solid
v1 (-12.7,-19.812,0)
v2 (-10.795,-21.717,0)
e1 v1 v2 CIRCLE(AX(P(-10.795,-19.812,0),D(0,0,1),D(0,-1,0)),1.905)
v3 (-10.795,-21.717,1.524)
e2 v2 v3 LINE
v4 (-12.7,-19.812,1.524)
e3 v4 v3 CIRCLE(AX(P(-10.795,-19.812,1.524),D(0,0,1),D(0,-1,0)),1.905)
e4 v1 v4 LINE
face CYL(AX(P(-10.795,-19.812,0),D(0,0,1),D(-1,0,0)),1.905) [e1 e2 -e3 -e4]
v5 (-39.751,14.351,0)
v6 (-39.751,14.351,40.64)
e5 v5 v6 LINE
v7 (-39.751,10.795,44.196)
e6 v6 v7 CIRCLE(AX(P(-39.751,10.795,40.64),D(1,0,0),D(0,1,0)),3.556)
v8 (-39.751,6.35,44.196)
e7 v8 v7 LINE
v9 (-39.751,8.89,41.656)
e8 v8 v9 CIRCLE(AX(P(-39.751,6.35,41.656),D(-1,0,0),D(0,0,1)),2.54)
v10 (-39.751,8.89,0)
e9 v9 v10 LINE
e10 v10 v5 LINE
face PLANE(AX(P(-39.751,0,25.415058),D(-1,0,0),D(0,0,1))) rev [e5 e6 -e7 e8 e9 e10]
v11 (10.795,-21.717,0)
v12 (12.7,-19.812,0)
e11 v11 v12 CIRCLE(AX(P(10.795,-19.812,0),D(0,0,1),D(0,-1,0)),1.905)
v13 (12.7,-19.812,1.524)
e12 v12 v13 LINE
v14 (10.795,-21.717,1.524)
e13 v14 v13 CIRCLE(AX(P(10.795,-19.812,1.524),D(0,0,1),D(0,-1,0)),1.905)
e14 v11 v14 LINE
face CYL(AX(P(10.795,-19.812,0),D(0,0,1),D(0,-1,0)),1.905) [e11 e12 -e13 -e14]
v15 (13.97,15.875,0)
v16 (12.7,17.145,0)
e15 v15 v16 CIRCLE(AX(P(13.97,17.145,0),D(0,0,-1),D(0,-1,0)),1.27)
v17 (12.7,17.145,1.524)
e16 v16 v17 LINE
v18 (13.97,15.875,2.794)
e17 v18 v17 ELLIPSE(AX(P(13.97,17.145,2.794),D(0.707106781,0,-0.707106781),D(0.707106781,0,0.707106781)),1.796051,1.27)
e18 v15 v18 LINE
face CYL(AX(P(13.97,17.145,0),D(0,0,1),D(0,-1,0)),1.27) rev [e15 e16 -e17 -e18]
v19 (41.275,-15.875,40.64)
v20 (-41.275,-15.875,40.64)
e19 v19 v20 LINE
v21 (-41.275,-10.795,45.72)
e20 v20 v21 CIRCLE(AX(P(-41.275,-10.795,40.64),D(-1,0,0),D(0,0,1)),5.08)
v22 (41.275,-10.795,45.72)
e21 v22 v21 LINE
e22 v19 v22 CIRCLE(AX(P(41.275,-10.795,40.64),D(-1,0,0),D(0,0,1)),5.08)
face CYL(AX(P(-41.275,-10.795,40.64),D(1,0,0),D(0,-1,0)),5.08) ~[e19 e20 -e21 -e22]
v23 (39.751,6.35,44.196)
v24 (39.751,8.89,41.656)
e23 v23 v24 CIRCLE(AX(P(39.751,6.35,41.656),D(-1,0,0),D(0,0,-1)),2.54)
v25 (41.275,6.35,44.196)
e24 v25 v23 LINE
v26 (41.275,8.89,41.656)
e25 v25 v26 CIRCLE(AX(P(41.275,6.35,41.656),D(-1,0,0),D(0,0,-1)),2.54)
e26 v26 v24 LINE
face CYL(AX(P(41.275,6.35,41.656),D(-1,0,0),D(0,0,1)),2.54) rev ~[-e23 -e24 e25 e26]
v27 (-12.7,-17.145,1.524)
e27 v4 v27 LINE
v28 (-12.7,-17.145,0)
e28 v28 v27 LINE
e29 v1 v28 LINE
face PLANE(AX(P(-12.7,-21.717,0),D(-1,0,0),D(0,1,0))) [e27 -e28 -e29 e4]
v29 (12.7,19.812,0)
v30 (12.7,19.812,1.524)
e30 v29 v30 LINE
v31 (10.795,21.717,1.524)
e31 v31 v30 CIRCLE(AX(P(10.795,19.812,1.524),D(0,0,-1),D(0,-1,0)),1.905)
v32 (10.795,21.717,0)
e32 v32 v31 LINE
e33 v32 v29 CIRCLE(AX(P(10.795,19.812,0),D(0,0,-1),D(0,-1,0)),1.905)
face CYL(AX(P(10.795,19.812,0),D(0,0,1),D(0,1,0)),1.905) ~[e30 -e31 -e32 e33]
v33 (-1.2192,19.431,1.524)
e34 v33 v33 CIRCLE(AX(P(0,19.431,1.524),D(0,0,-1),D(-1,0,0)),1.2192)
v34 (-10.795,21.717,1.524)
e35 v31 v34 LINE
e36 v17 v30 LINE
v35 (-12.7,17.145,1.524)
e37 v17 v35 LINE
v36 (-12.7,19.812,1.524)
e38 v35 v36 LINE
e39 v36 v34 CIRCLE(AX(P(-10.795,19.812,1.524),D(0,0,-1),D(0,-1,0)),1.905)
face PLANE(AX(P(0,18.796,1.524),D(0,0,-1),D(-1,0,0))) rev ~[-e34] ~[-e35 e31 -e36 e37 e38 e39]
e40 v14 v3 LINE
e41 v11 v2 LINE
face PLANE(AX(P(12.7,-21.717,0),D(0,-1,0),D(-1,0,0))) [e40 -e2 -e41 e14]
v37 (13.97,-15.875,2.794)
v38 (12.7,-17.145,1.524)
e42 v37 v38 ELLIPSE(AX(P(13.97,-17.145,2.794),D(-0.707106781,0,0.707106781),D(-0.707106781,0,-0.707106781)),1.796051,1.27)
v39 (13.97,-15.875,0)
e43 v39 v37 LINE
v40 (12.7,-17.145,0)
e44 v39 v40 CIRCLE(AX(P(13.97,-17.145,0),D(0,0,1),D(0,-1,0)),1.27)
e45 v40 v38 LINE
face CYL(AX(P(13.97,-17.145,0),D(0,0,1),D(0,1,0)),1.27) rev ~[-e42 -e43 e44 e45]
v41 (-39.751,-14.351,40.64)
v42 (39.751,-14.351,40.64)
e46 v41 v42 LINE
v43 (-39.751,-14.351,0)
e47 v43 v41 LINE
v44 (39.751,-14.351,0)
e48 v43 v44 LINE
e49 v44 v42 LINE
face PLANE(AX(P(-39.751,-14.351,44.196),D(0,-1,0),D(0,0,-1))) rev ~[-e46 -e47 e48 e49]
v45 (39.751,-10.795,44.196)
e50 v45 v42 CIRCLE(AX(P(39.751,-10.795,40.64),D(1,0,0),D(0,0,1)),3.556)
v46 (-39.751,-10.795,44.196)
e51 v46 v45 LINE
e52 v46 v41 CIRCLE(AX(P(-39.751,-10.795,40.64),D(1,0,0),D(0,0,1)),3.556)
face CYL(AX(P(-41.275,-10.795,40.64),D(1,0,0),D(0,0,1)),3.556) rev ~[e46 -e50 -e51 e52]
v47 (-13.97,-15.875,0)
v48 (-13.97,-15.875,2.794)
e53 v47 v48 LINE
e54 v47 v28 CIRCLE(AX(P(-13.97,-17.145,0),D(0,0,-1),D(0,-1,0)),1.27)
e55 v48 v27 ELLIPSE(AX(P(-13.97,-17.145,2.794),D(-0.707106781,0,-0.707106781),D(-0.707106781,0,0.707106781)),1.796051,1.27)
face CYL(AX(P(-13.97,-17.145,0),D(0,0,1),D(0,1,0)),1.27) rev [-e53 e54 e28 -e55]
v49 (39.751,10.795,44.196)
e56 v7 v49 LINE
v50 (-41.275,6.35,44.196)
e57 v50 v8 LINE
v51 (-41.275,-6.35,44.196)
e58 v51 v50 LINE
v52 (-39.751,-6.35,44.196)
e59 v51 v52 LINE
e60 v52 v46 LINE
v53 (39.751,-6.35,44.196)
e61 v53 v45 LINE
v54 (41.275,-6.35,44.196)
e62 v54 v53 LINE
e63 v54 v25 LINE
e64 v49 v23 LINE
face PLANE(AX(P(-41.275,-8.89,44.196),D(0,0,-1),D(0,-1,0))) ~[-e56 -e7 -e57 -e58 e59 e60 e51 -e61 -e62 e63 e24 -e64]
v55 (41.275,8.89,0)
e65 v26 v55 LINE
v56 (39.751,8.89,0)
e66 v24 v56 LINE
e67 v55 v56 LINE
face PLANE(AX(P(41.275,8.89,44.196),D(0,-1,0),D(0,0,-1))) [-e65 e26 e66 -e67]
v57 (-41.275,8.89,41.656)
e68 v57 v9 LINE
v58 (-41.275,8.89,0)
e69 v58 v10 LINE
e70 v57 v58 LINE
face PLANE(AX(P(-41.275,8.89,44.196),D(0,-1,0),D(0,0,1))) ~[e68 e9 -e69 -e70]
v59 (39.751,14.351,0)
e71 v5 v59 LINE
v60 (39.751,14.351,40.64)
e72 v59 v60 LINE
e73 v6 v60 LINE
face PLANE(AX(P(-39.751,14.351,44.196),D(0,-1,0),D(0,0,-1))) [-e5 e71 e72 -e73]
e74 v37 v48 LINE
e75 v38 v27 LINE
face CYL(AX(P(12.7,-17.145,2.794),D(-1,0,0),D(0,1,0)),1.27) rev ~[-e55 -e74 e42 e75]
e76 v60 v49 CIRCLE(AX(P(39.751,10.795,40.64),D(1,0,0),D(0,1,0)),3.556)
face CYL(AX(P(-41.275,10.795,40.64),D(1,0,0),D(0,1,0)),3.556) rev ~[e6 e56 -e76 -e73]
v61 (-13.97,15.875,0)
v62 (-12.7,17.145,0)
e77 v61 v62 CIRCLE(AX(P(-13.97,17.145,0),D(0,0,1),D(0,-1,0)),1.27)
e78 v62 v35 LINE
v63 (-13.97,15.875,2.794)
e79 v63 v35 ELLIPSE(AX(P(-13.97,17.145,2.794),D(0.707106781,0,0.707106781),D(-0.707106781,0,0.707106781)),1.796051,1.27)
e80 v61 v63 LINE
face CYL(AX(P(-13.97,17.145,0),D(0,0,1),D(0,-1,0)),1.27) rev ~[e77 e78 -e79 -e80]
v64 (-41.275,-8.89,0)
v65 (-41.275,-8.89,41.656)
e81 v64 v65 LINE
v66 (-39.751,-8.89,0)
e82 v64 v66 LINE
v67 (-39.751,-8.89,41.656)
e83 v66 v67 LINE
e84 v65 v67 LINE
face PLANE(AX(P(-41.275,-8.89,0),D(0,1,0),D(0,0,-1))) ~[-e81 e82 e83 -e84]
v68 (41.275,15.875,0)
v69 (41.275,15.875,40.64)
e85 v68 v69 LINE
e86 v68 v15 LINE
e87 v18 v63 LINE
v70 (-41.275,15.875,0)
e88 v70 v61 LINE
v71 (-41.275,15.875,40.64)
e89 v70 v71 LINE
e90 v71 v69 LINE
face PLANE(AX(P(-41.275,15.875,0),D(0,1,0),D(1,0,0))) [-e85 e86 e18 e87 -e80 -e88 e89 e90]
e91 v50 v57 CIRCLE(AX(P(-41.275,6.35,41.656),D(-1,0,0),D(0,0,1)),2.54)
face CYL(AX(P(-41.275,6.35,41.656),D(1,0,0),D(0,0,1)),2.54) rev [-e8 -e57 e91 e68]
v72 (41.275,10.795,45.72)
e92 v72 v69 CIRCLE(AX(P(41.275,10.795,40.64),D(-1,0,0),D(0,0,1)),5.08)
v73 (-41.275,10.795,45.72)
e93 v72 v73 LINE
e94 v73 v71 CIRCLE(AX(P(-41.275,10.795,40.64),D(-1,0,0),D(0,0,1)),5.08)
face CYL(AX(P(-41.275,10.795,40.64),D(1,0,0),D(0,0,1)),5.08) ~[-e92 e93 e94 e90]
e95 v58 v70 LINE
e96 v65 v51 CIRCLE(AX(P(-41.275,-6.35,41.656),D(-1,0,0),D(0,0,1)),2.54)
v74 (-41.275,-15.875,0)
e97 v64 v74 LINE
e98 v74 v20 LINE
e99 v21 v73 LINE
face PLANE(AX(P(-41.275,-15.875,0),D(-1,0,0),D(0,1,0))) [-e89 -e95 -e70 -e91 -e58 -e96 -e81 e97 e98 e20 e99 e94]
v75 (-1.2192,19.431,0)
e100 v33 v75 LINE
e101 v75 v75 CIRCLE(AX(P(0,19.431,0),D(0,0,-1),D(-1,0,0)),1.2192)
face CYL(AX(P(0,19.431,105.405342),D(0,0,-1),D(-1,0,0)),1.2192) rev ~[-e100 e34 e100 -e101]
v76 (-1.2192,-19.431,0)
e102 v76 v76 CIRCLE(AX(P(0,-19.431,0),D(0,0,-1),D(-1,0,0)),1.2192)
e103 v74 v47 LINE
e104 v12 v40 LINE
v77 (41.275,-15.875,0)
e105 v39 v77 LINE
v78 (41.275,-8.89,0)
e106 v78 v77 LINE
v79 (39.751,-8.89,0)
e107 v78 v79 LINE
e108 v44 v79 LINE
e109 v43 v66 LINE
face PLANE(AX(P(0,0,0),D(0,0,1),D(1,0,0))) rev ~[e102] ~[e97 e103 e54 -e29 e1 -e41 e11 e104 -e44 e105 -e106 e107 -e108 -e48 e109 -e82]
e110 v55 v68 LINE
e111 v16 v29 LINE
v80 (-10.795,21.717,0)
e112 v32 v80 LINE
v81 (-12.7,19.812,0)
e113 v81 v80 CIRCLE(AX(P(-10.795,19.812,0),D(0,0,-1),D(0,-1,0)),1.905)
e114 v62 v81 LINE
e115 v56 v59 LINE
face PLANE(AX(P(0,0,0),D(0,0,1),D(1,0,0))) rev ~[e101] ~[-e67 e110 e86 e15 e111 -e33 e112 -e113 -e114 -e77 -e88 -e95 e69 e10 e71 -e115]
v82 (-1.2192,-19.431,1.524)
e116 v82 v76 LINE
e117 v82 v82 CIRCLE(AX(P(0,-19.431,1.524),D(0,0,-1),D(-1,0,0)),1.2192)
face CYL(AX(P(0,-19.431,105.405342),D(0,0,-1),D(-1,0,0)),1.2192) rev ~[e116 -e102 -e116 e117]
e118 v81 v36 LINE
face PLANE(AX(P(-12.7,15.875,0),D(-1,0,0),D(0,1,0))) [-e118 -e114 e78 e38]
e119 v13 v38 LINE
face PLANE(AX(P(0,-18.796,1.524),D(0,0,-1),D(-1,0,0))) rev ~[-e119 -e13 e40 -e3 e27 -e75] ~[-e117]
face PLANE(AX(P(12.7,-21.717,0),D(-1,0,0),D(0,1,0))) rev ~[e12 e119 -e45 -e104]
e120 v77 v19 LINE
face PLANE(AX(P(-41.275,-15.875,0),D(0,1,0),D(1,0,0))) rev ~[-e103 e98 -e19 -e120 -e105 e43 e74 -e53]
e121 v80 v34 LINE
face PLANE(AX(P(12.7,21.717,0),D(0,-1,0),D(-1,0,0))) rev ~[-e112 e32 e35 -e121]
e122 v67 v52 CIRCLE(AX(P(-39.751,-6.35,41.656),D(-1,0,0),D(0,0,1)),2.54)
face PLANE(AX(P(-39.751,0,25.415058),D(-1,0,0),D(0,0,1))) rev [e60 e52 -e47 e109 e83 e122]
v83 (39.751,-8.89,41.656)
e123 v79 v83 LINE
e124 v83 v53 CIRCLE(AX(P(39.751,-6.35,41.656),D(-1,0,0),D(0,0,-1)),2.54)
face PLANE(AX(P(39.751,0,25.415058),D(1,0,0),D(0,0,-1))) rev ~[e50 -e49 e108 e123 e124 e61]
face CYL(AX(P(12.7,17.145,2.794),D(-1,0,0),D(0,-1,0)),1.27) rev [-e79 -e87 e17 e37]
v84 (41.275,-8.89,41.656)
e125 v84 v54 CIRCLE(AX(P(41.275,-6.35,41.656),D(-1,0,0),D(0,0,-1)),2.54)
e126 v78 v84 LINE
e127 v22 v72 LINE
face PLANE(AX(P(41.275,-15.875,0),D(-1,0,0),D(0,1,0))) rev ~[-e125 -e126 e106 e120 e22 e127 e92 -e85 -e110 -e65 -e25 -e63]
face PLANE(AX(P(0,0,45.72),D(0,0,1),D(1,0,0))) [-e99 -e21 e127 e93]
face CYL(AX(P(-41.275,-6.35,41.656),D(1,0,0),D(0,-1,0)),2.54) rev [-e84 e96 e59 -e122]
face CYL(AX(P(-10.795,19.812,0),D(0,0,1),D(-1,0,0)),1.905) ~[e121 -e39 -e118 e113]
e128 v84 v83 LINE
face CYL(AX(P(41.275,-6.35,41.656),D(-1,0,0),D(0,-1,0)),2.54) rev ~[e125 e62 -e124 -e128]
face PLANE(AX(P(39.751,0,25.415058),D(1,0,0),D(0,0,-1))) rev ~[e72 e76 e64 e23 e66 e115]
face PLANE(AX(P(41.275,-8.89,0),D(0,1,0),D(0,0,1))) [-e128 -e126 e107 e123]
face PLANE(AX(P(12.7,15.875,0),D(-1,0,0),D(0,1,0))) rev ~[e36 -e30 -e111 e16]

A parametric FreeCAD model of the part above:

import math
import FreeCAD as App
import Part
import Sketcher
from FreeCAD import Vector
Q = App.Units.Quantity


def edges_at(feature, points):
    """Names of the edges that pass closest to the given points."""
    edges = feature.Shape.Edges
    near = lambda p: min(range(len(edges)), key=lambda i: edges[i].distToShape(Part.Vertex(*p))[0])
    return sorted({f"Edge{near(p) + 1}" for p in points})


def faces_at(feature, points):
    """Names of the faces that lie closest to the given points."""
    faces = feature.Shape.Faces
    near = lambda p: min(range(len(faces)), key=lambda i: faces[i].distToShape(Part.Vertex(*p))[0])
    return sorted({f"Face{near(p) + 1}" for p in points})

doc = App.newDocument("Part")
body = doc.addObject("PartDesign::Body", "Body")

sketch1 = body.newObject("Sketcher::SketchObject", "Sketch")
sketch1.AttachmentSupport = (doc.getObject("XY_Plane"), [""])
sketch1.MapMode = "FlatFace"
sketch1.addGeometry([
    Part.LineSegment(Vector(-41, 16, 0), Vector(-41, -16, 0)),
    Part.LineSegment(Vector(-41, -16, 0), Vector(41, -16, 0)),
    Part.LineSegment(Vector(41, -16, 0), Vector(41, 16, 0)),
    Part.LineSegment(Vector(41, 16, 0), Vector(-41, 16, 0)),
], False)
sketch1.addConstraint([
    Sketcher.Constraint("Coincident", 0, 2, 1, 1),
    Sketcher.Constraint("Coincident", 1, 2, 2, 1),
    Sketcher.Constraint("Coincident", 2, 2, 3, 1),
    Sketcher.Constraint("Coincident", 3, 2, 0, 1),
    Sketcher.Constraint("Vertical", 0),
    Sketcher.Constraint("Horizontal", 1),
    Sketcher.Constraint("Vertical", 2),
    Sketcher.Constraint("Horizontal", 3),
    Sketcher.Constraint("Symmetric", 0, 2, 2, 2, -1, 1),
    Sketcher.Constraint("DistanceX", 1, 1, 1, 2, Q("3.25 in")),
    Sketcher.Constraint("DistanceY", 0, 2, 0, 1, Q("1.25 in")),
])
pad1 = body.newObject("PartDesign::Pad", "Pad")
pad1.Profile = sketch1
pad1.Length = Q("1.8 in")
doc.recompute()

thickness = body.newObject("PartDesign::Thickness", "Thickness")
thickness.Base = (pad1, faces_at(pad1, [(0, 0, 0)]))
thickness.Value = Q("0.06 in")
thickness.Reversed = True
thickness.Join = "Intersection"

sketch2 = body.newObject("Sketcher::SketchObject", "Sketch001")
sketch2.AttachmentSupport = (doc.getObject("XY_Plane"), [""])
sketch2.MapMode = "FlatFace"
sketch2.addGeometry([
    Part.LineSegment(Vector(13, 22, 0), Vector(13, 16, 0)),
    Part.LineSegment(Vector(13, 16, 0), Vector(-13, 16, 0)),
    Part.LineSegment(Vector(-13, 16, 0), Vector(-13, 22, 0)),
    Part.LineSegment(Vector(-13, 22, 0), Vector(13, 22, 0)),
    Part.LineSegment(Vector(13, -16, 0), Vector(13, -22, 0)),
    Part.LineSegment(Vector(13, -22, 0), Vector(-13, -22, 0)),
    Part.LineSegment(Vector(-13, -22, 0), Vector(-13, -16, 0)),
    Part.LineSegment(Vector(-13, -16, 0), Vector(13, -16, 0)),
], False)
sketch2.addConstraint([
    Sketcher.Constraint("Coincident", 0, 2, 1, 1),
    Sketcher.Constraint("Coincident", 1, 2, 2, 1),
    Sketcher.Constraint("Coincident", 2, 2, 3, 1),
    Sketcher.Constraint("Coincident", 3, 2, 0, 1),
    Sketcher.Constraint("Coincident", 4, 2, 5, 1),
    Sketcher.Constraint("Coincident", 5, 2, 6, 1),
    Sketcher.Constraint("Coincident", 6, 2, 7, 1),
    Sketcher.Constraint("Coincident", 7, 2, 4, 1),
    Sketcher.Constraint("Vertical", 0),
    Sketcher.Constraint("Horizontal", 1),
    Sketcher.Constraint("Vertical", 2),
    Sketcher.Constraint("Horizontal", 3),
    Sketcher.Constraint("Vertical", 4),
    Sketcher.Constraint("Horizontal", 5),
    Sketcher.Constraint("Vertical", 6),
    Sketcher.Constraint("Horizontal", 7),
    Sketcher.Constraint("Symmetric", 2, 2, 4, 2, -1, 1),
    Sketcher.Constraint("Symmetric", 0, 2, 6, 2, -1, 1),
    Sketcher.Constraint("Vertical", 3, 2, 4, 2),
    Sketcher.Constraint("DistanceX", 1, 2, 1, 1, Q("1 in")),
    Sketcher.Constraint("DistanceY", 0, 2, 0, 1, Q("0.23 in")),
    Sketcher.Constraint("DistanceY", 4, 2, 0, 2, Q("1.48 in")),
])
pad2 = body.newObject("PartDesign::Pad", "Pad001")
pad2.Profile = sketch2
pad2.Length = Q("0.06 in")
doc.recompute()

fillet = body.newObject("PartDesign::Fillet", "Fillet")
fillet.Base = (pad2, edges_at(pad2, [
    (12.7, 15.875, 0.762),
    (0, 15.875, 1.524),
    (-12.7, 15.875, 0.762),
    (0, -15.875, 1.524),
    (12.7, -15.875, 0.762),
    (-12.7, -15.875, 0.762),
]))
fillet.Radius = Q("0.05 in")
doc.recompute()

fillet2 = body.newObject("PartDesign::Fillet", "Fillet001")
fillet2.Base = (fillet, edges_at(fillet, [
    (12.7, 21.717, 0.762),
    (-12.7, 21.717, 0.762),
    (12.7, -21.717, 0.762),
    (-12.7, -21.717, 0.762),
]))
fillet2.Radius = Q("0.075 in")

sketch3 = body.newObject("Sketcher::SketchObject", "Sketch002")
sketch3.AttachmentSupport = (doc.getObject("XY_Plane"), [""])
sketch3.MapMode = "FlatFace"
sketch3.AttachmentOffset = App.Placement(Vector(0, 0, 0.06 * 25.4), App.Rotation())
sketch3.addGeometry([
    Part.Circle(Vector(0, 19.4, 0), Vector(0, 0, 1), 1.2),
    Part.Circle(Vector(0, -19.4, 0), Vector(0, 0, 1), 1.2),
], False)
sketch3.addConstraint([
    Sketcher.Constraint("Equal", 0, 1),
    Sketcher.Constraint("Symmetric", 0, 3, 1, 3, -1, 1),
    Sketcher.Constraint("PointOnObject", 0, 3, -2),
    Sketcher.Constraint("Diameter", 0, Q("0.096 in")),
    Sketcher.Constraint("DistanceY", 1, 3, 0, 3, Q("1.53 in")),
])
doc.recompute()
hole = body.newObject("PartDesign::Hole", "Hole")
hole.Profile = sketch3
hole.ThreadType = "None"
hole.Diameter = Q("0.096 in")
hole.DepthType = "ThroughAll"

sketch4 = body.newObject("Sketcher::SketchObject", "Sketch003")
sketch4.AttachmentSupport = (doc.getObject("YZ_Plane"), [""])
sketch4.MapMode = "FlatFace"
sketch4.AttachmentOffset = App.Placement(Vector(0, 0, -1.565 * 25.4), App.Rotation())
sketch4.addGeometry([
    Part.LineSegment(Vector(14, 44, 0), Vector(-14, 44, 0)),
    Part.LineSegment(Vector(-14, 44, 0), Vector(-14, 0, 0)),
    Part.LineSegment(Vector(-14, 0, 0), Vector(14, 0, 0)),
    Part.LineSegment(Vector(14, 0, 0), Vector(14, 44, 0)),
], False)
sketch4.addConstraint([
    Sketcher.Constraint("Coincident", 0, 2, 1, 1),
    Sketcher.Constraint("Coincident", 1, 2, 2, 1),
    Sketcher.Constraint("Coincident", 2, 2, 3, 1),
    Sketcher.Constraint("Coincident", 3, 2, 0, 1),
    Sketcher.Constraint("Horizontal", 0),
    Sketcher.Constraint("Vertical", 1),
    Sketcher.Constraint("Horizontal", 2),
    Sketcher.Constraint("Vertical", 3),
    Sketcher.Constraint("Symmetric", 1, 2, 2, 2, -1, 1),
    Sketcher.Constraint("DistanceX", 0, 2, 0, 1, Q("1.13 in")),
    Sketcher.Constraint("DistanceY", 1, 2, 1, 1, Q("1.74 in")),
])
pocket1 = body.newObject("PartDesign::Pocket", "Pocket")
pocket1.Profile = sketch4
pocket1.Type = "ThroughAll"
pocket1.Midplane = True
doc.recompute()

fillet3 = body.newObject("PartDesign::Fillet", "Fillet002")
fillet3.Base = (pocket1, edges_at(pocket1, [(0, -14.351, 44.196), (0, 14.351, 44.196)]))
fillet3.Radius = Q("0.14 in")
doc.recompute()

fillet4 = body.newObject("PartDesign::Fillet", "Fillet003")
fillet4.Base = (fillet3, edges_at(fillet3, [(0, 15.875, 45.72), (0, -15.875, 45.72)]))
fillet4.Radius = Q("0.2 in")

sketch5 = body.newObject("Sketcher::SketchObject", "Sketch004")
sketch5.AttachmentSupport = (doc.getObject("YZ_Plane"), [""])
sketch5.MapMode = "FlatFace"
sketch5.AttachmentOffset = App.Placement(Vector(0, 0, 1.625 * 25.4), App.Rotation())
sketch5.addGeometry([
    Part.LineSegment(Vector(11, 46, 0), Vector(-11, 46, 0)),
    Part.ArcOfCircle(Part.Circle(Vector(-11, 41, 0), Vector(0, 0, 1), 5), math.radians(90), math.radians(180)),
    Part.LineSegment(Vector(-16, 41, 0), Vector(-16, 0, 0)),
    Part.LineSegment(Vector(-16, 0, 0), Vector(-9, 0, 0)),
    Part.LineSegment(Vector(-9, 0, 0), Vector(-9, 44, 0)),
    Part.LineSegment(Vector(-9, 44, 0), Vector(9, 44, 0)),
    Part.LineSegment(Vector(9, 44, 0), Vector(9, 0, 0)),
    Part.LineSegment(Vector(9, 0, 0), Vector(16, 0, 0)),
    Part.LineSegment(Vector(16, 0, 0), Vector(16, 41, 0)),
    Part.ArcOfCircle(Part.Circle(Vector(11, 41, 0), Vector(0, 0, 1), 5), math.radians(0), math.radians(90)),
], False)
sketch5.addConstraint([
    Sketcher.Constraint("Tangent", 0, 2, 1, 1),
    Sketcher.Constraint("Tangent", 1, 2, 2, 1),
    Sketcher.Constraint("Coincident", 2, 2, 3, 1),
    Sketcher.Constraint("Coincident", 3, 2, 4, 1),
    Sketcher.Constraint("Coincident", 4, 2, 5, 1),
    Sketcher.Constraint("Coincident", 5, 2, 6, 1),
    Sketcher.Constraint("Coincident", 6, 2, 7, 1),
    Sketcher.Constraint("Coincident", 7, 2, 8, 1),
    Sketcher.Constraint("Tangent", 8, 2, 9, 1),
    Sketcher.Constraint("Tangent", 9, 2, 0, 1),
    Sketcher.Constraint("Horizontal", 0),
    Sketcher.Constraint("Vertical", 2),
    Sketcher.Constraint("Horizontal", 3),
    Sketcher.Constraint("Vertical", 4),
    Sketcher.Constraint("Horizontal", 5),
    Sketcher.Constraint("Vertical", 6),
    Sketcher.Constraint("Horizontal", 7),
    Sketcher.Constraint("Vertical", 8),
    Sketcher.Constraint("Equal", 1, 9),
    Sketcher.Constraint("Symmetric", 3, 2, 6, 2, -1, 1),
    Sketcher.Constraint("Symmetric", 2, 2, 7, 2, -2),
    Sketcher.Constraint("Radius", 1, Q("0.2 in")),
    Sketcher.Constraint("DistanceX", 5, 1, 5, 2, Q("0.7 in")),
    Sketcher.Constraint("DistanceY", 2, 2, 2, 1, Q("1.6 in")),
    Sketcher.Constraint("DistanceX", 0, 2, 0, 1, Q("0.85 in")),
    Sketcher.Constraint("DistanceY", 4, 1, 4, 2, Q("1.74 in")),
])
pad3 = body.newObject("PartDesign::Pad", "Pad002")
pad3.Profile = sketch5
pad3.Length = Q("0.06 in")
pad3.Reversed = True
doc.recompute()

fillet5 = body.newObject("PartDesign::Fillet", "Fillet004")
fillet5.Base = (pad3, edges_at(pad3, [(40.513, 8.89, 44.196), (40.513, -8.89, 44.196)]))
fillet5.Radius = Q("0.1 in")
doc.recompute()

mirrored = body.newObject("PartDesign::Mirrored", "Mirrored")
mirrored.Originals = [pad3]
mirrored.MirrorPlane = (doc.getObject("YZ_Plane"), [""])
body.Tip = mirrored
doc.recompute()

fillet6 = body.newObject("PartDesign::Fillet", "Fillet005")
fillet6.Base = (mirrored, edges_at(mirrored, [(-40.513, -8.89, 44.196), (-40.513, 8.89, 44.196)]))
fillet6.Radius = Q("0.1 in")

doc.recompute()
